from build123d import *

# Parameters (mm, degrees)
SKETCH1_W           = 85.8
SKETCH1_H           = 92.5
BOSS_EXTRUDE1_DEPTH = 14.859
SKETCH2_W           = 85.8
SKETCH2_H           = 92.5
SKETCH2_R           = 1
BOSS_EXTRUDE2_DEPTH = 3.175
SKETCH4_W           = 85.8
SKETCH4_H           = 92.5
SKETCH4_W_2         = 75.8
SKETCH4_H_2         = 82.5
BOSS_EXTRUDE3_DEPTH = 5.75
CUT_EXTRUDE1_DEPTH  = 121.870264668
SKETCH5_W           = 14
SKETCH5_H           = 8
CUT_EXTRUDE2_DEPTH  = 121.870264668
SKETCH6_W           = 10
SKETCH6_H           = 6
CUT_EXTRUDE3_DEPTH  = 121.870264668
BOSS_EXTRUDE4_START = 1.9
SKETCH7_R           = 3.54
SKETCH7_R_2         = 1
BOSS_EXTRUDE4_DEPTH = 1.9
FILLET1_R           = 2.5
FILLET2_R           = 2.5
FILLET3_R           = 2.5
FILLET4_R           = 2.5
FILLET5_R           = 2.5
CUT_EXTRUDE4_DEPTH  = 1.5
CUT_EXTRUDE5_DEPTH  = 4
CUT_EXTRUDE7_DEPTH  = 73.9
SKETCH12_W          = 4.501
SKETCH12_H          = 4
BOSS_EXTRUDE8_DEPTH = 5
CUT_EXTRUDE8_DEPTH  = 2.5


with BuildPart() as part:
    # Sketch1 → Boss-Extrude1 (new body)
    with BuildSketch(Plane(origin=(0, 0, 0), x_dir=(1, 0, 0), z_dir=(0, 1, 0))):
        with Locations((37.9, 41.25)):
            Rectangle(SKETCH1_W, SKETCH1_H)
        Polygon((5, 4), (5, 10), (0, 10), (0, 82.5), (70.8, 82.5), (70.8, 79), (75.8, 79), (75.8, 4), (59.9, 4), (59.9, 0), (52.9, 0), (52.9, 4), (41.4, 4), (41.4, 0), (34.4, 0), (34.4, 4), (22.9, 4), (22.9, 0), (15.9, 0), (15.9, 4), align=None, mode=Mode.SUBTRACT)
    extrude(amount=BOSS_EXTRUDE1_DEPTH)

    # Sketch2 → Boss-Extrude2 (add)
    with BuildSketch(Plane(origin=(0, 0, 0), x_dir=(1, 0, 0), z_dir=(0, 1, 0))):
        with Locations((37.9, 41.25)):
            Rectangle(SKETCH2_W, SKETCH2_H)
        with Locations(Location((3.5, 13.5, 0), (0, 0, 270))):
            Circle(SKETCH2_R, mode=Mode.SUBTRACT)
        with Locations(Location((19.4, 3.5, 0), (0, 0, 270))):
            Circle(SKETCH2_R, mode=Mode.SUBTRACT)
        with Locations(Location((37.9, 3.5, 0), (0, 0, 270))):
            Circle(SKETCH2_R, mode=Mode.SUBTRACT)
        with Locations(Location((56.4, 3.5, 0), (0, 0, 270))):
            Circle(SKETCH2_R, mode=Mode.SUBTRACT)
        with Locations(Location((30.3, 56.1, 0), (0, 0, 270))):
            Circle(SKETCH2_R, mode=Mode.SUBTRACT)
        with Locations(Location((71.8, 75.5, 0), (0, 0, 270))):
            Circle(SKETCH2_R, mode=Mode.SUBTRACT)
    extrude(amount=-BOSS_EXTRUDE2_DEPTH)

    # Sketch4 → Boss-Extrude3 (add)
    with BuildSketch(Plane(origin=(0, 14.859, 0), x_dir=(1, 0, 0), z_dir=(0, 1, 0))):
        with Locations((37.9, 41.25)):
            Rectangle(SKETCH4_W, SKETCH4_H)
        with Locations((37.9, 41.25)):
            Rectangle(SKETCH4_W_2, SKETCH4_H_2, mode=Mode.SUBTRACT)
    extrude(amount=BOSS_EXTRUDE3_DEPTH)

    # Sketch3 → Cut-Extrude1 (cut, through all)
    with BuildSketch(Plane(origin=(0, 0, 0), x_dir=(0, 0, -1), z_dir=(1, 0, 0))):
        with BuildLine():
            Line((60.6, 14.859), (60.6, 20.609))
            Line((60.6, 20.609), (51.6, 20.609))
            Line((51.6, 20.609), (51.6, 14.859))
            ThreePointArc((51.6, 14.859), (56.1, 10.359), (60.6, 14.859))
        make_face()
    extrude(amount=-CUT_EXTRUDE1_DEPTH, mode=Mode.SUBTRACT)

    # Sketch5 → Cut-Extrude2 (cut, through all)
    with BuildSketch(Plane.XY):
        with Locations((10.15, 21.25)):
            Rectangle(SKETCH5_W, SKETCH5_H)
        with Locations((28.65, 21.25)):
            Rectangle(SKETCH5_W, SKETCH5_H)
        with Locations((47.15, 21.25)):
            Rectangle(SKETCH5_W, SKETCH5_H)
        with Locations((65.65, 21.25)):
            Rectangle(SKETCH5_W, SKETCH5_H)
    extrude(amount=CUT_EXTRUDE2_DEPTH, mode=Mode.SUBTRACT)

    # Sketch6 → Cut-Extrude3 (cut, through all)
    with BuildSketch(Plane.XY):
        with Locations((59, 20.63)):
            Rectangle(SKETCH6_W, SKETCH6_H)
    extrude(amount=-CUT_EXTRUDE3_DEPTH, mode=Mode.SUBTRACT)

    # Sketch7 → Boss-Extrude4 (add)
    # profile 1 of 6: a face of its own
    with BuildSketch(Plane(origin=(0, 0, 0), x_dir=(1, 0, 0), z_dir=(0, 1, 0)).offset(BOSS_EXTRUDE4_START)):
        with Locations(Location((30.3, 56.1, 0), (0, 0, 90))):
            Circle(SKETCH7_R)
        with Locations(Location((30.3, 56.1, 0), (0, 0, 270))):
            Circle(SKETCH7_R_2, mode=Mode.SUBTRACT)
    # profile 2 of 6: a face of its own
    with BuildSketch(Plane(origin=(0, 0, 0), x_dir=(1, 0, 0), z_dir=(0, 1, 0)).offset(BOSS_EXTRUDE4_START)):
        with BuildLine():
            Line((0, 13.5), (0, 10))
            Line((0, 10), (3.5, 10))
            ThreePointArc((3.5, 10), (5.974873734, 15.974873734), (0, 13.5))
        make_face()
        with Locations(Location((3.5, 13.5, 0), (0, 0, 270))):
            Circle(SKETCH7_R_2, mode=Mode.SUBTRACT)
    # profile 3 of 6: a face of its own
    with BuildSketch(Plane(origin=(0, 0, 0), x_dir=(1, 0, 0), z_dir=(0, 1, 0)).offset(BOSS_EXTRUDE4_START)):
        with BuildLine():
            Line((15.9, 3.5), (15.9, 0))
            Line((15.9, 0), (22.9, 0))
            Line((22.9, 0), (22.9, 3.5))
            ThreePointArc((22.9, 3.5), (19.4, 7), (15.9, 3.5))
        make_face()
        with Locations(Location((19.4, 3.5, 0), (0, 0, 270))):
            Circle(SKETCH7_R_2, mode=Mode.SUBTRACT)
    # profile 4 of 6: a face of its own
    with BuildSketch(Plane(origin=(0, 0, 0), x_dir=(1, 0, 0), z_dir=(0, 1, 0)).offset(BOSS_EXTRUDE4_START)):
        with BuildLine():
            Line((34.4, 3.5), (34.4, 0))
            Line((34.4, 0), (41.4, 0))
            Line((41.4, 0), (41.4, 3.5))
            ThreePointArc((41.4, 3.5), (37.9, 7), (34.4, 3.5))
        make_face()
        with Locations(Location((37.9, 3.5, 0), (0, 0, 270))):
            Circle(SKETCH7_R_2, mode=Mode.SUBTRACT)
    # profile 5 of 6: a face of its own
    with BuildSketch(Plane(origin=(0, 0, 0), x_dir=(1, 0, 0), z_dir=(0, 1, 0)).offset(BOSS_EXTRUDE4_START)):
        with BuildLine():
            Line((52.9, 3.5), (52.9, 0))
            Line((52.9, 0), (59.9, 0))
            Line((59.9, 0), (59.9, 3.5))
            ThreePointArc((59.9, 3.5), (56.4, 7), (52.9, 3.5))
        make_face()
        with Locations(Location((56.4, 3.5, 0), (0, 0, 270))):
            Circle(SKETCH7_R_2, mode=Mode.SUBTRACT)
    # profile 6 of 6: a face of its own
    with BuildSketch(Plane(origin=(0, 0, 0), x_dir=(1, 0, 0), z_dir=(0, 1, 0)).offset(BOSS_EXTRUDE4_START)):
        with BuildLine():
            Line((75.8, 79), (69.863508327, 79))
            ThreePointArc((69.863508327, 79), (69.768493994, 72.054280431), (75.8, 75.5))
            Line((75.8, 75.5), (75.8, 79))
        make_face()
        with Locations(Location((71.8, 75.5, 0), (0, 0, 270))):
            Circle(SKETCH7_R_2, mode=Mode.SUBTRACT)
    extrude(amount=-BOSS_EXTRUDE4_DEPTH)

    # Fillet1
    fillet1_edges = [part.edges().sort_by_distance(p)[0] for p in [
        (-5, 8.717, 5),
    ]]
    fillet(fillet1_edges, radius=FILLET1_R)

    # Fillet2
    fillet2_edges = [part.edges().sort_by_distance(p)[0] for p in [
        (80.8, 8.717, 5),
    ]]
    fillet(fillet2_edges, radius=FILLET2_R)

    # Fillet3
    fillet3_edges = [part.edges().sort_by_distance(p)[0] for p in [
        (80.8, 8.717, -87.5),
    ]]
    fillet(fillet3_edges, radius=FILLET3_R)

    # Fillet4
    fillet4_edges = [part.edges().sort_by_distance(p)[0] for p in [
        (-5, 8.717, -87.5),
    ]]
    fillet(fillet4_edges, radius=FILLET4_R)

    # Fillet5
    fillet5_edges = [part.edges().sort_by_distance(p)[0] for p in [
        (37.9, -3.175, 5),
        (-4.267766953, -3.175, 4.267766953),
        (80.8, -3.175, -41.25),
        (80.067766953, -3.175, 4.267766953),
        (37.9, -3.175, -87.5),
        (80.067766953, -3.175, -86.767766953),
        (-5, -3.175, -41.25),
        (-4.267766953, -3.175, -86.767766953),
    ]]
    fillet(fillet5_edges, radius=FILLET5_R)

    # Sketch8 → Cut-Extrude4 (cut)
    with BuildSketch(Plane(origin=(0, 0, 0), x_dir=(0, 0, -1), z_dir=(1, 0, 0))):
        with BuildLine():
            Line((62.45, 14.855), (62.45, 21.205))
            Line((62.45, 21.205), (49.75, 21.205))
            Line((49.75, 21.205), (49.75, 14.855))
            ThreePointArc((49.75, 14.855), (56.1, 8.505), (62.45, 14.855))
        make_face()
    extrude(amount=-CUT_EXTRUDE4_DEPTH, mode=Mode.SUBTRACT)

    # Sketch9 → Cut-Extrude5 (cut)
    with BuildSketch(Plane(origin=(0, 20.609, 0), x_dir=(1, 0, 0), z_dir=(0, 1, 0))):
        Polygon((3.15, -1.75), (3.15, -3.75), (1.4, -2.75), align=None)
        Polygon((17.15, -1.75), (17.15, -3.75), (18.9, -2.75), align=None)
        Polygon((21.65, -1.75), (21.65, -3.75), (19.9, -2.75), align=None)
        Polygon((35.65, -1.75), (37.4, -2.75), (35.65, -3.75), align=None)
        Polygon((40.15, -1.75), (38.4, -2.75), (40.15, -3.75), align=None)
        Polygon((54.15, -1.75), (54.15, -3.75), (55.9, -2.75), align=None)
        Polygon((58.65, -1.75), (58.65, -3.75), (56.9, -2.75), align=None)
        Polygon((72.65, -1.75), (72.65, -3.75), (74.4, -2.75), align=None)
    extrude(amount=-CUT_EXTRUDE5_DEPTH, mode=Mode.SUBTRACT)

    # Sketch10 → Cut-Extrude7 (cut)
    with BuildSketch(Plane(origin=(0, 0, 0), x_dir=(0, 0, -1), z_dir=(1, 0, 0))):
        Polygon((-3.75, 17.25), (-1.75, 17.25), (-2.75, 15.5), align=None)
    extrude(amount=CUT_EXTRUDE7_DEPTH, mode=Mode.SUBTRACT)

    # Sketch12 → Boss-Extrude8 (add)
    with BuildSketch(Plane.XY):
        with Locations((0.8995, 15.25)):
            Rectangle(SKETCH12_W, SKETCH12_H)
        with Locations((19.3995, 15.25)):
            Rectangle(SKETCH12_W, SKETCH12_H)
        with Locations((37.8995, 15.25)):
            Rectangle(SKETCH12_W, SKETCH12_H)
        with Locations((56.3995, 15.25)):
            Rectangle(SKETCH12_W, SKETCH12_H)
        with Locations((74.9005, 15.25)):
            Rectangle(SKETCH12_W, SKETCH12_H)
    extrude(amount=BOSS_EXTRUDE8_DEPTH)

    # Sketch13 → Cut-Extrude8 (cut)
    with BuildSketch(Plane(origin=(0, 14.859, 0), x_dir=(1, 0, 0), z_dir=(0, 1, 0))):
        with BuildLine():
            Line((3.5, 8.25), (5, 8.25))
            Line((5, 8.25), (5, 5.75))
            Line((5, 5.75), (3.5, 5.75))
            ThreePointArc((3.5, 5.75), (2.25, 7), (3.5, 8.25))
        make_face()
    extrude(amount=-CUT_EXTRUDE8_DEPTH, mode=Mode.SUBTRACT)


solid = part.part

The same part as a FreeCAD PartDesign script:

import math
import FreeCAD as App
import Part
import Sketcher

V = App.Vector
Q = App.Units.Quantity


def edges_at(feature, points):
    """Names of the edges that pass closest to the given points."""
    edges = feature.Shape.Edges
    near = lambda p: min(range(len(edges)), key=lambda i: edges[i].distToShape(Part.Vertex(*p))[0])
    return sorted({f"Edge{near(p) + 1}" for p in points})


def add_polygon(sketch, points):
    """Adds a closed chain of lines whose ends are joined by coincident constraints."""
    first, n = sketch.GeometryCount, len(points)
    for a, b in zip(points, points[1:] + points[:1]):
        sketch.addGeometry(Part.LineSegment(App.Vector(*a, 0), App.Vector(*b, 0)), False)
    for i in range(n):
        sketch.addConstraint(Sketcher.Constraint("Coincident", first + i, 2, first + (i + 1) % n, 1))

doc = App.newDocument("Part")
body = doc.addObject("PartDesign::Body", "Body")

# Sketch on XZ plane
sketch1 = doc.addObject("Sketcher::SketchObject", "Sketch")
body.addObject(sketch1)
sketch1.AttachmentSupport = (doc.XZ_Plane, [""])
sketch1.MapMode = "FlatFace"
add_polygon(sketch1, [(-5, -87.5), (-5, 5), (80.8, 5), (80.8, -87.5)])  # lines 0-3
add_polygon(sketch1, [(15.9, -4), (5, -4), (5, -10), (0, -10), (0, -82.5), (70.8, -82.5), (70.8, -79), (75.8, -79), (75.8, -4), (59.9, -4), (59.9, 0), (52.9, 0), (52.9, -4), (41.4, -4), (41.4, 0), (34.4, 0), (34.4, -4), (22.9, -4), (22.9, 0), (15.9, 0)])  # lines 4-23
sketch1.addConstraint([
    Sketcher.Constraint("Vertical", 0),
    Sketcher.Constraint("Horizontal", 1),
    Sketcher.Constraint("Vertical", 2),
    Sketcher.Constraint("Horizontal", 3),
    Sketcher.Constraint("Horizontal", 4),
    Sketcher.Constraint("Vertical", 5),
    Sketcher.Constraint("Horizontal", 6),
    Sketcher.Constraint("Vertical", 7),
    Sketcher.Constraint("Horizontal", 8),
    Sketcher.Constraint("Vertical", 9),
    Sketcher.Constraint("Horizontal", 10),
    Sketcher.Constraint("Vertical", 11),
    Sketcher.Constraint("Horizontal", 12),
    Sketcher.Constraint("Vertical", 13),
    Sketcher.Constraint("Horizontal", 14),
    Sketcher.Constraint("Vertical", 15),
    Sketcher.Constraint("Horizontal", 16),
    Sketcher.Constraint("Vertical", 17),
    Sketcher.Constraint("Horizontal", 18),
    Sketcher.Constraint("Vertical", 19),
    Sketcher.Constraint("Horizontal", 20),
    Sketcher.Constraint("Vertical", 21),
    Sketcher.Constraint("Horizontal", 22),
    Sketcher.Constraint("Vertical", 23),
    Sketcher.Constraint("PointOnObject", 6, 2, -2),
    Sketcher.Constraint("PointOnObject", 13, 2, -1),
    Sketcher.Constraint("PointOnObject", 17, 2, -1),
    Sketcher.Constraint("PointOnObject", 21, 2, -1),
    Sketcher.Constraint("Horizontal", 4, 2, 11, 2),
    Sketcher.Constraint("Horizontal", 12, 2, 15, 2),
    Sketcher.Constraint("Horizontal", 16, 2, 19, 2),
    Sketcher.Constraint("Equal", 6, 10),
    Sketcher.Constraint("Equal", 14, 18),
    Sketcher.Constraint("Equal", 16, 20),
    Sketcher.Constraint("Equal", 18, 22),
    Sketcher.Constraint("DistanceX", 6, 2, 6, 1, Q("5 mm")),
    Sketcher.Constraint("DistanceX", 14, 2, 14, 1, Q("7 mm")),
    Sketcher.Constraint("DistanceY", 5, 2, 5, 1, Q("6 mm")),
    Sketcher.Constraint("DistanceY", 11, 1, 11, 2, Q("75 mm")),
    Sketcher.Constraint("DistanceY", 13, 1, 13, 2, Q("4 mm")),
    Sketcher.Constraint("DistanceX", 1, 1, 1, 2, Q("85.8 mm")),
    Sketcher.Constraint("DistanceX", 4, 2, 4, 1, Q("10.9 mm")),
    Sketcher.Constraint("DistanceX", 8, 1, 8, 2, Q("70.8 mm")),
    Sketcher.Constraint("DistanceX", 12, 2, 12, 1, Q("15.9 mm")),
    Sketcher.Constraint("DistanceY", 0, 1, 0, 2, Q("92.5 mm")),
    Sketcher.Constraint("DistanceY", 7, 2, 7, 1, Q("72.5 mm")),
    Sketcher.Constraint("DistanceX", 0, 2, -1, 1, Q("5 mm")),
    Sketcher.Constraint("DistanceY", -1, 1, 0, 2, Q("5 mm")),
])
pad1 = doc.addObject("PartDesign::Pad", "Pad")
body.addObject(pad1)
pad1.Profile = sketch1
pad1.Length = 14.859
pad1.Reversed = True

# Sketch on XZ plane
sketch2 = doc.addObject("Sketcher::SketchObject", "Sketch001")
body.addObject(sketch2)
sketch2.AttachmentSupport = (doc.XZ_Plane, [""])
sketch2.MapMode = "FlatFace"
add_polygon(sketch2, [(-5, -87.5), (-5, 5), (80.8, 5), (80.8, -87.5)])  # lines 0-3
sketch2.addGeometry(Part.Circle(V(19.4, -3.5, 0), V(0, 0, 1), 1), False)  # 4
sketch2.addGeometry(Part.Circle(V(3.5, -13.5, 0), V(0, 0, 1), 1), False)  # 5
sketch2.addGeometry(Part.Circle(V(37.9, -3.5, 0), V(0, 0, 1), 1), False)  # 6
sketch2.addGeometry(Part.Circle(V(56.4, -3.5, 0), V(0, 0, 1), 1), False)  # 7
sketch2.addGeometry(Part.Circle(V(30.3, -56.1, 0), V(0, 0, 1), 1), False)  # 8
sketch2.addGeometry(Part.Circle(V(71.8, -75.5, 0), V(0, 0, 1), 1), False)  # 9
sketch2.addConstraint([
    Sketcher.Constraint("Vertical", 0),
    Sketcher.Constraint("Horizontal", 1),
    Sketcher.Constraint("Vertical", 2),
    Sketcher.Constraint("Horizontal", 3),
    Sketcher.Constraint("Equal", 4, 5),
    Sketcher.Constraint("Equal", 5, 6),
    Sketcher.Constraint("Equal", 6, 7),
    Sketcher.Constraint("Equal", 7, 8),
    Sketcher.Constraint("Equal", 8, 9),
    Sketcher.Constraint("Horizontal", 4, 3, 6, 3),
    Sketcher.Constraint("Horizontal", 6, 3, 7, 3),
    Sketcher.Constraint("Diameter", 4, Q("2 mm")),
    Sketcher.Constraint("DistanceX", 1, 1, 1, 2, Q("85.8 mm")),
    Sketcher.Constraint("DistanceY", 0, 1, 0, 2, Q("92.5 mm")),
    Sketcher.Constraint("DistanceX", 0, 2, -1, 1, Q("5 mm")),
    Sketcher.Constraint("DistanceY", -1, 1, 0, 2, Q("5 mm")),
    Sketcher.Constraint("DistanceY", 5, 3, 4, 3, Q("10 mm")),
    Sketcher.Constraint("DistanceX", 4, 3, 7, 3, Q("37 mm")),
    Sketcher.Constraint("DistanceY", 9, 3, 7, 3, Q("72 mm")),
    Sketcher.Constraint("DistanceX", 9, 3, 2, 2, Q("9 mm")),
    Sketcher.Constraint("DistanceY", 2, 2, 9, 3, Q("12 mm")),
    Sketcher.Constraint("DistanceX", -1, 1, 4, 3, Q("19.4 mm")),
    Sketcher.Constraint("DistanceX", -1, 1, 5, 3, Q("3.5 mm")),
    Sketcher.Constraint("DistanceX", -1, 1, 6, 3, Q("37.9 mm")),
    Sketcher.Constraint("DistanceX", -1, 1, 8, 3, Q("30.3 mm")),
    Sketcher.Constraint("DistanceY", 8, 3, -1, 1, Q("56.1 mm")),
])
pad2 = doc.addObject("PartDesign::Pad", "Pad001")
body.addObject(pad2)
pad2.Profile = sketch2
pad2.Length = 3.175

# Sketch on XZ plane
sketch3 = doc.addObject("Sketcher::SketchObject", "Sketch002")
body.addObject(sketch3)
sketch3.AttachmentSupport = (doc.XZ_Plane, [""])
sketch3.MapMode = "FlatFace"
sketch3.AttachmentOffset = App.Placement(V(0, 0, -14.859), App.Rotation())
add_polygon(sketch3, [(-5, -88), (-5, 5), (81, 5), (81, -88)])  # lines 0-3
add_polygon(sketch3, [(76, 0), (0, 0), (0, -82), (76, -82)])  # lines 4-7
sketch3.addConstraint([
    Sketcher.Constraint("Vertical", 0),
    Sketcher.Constraint("Horizontal", 1),
    Sketcher.Constraint("Vertical", 2),
    Sketcher.Constraint("Horizontal", 3),
    Sketcher.Constraint("Horizontal", 4),
    Sketcher.Constraint("Vertical", 5),
    Sketcher.Constraint("Horizontal", 6),
    Sketcher.Constraint("Vertical", 7),
    Sketcher.Constraint("Coincident", 4, 2, -1, 1),
    Sketcher.Constraint("DistanceX", 1, 1, 1, 2, Q("85.8 mm")),
    Sketcher.Constraint("DistanceX", 4, 2, 4, 1, Q("75.8 mm")),
    Sketcher.Constraint("DistanceY", 0, 1, 0, 2, Q("92.5 mm")),
    Sketcher.Constraint("DistanceY", 5, 2, 5, 1, Q("82.5 mm")),
    Sketcher.Constraint("DistanceX", 0, 2, -1, 1, Q("5 mm")),
    Sketcher.Constraint("DistanceY", -1, 1, 0, 2, Q("5 mm")),
])
pad3 = doc.addObject("PartDesign::Pad", "Pad002")
body.addObject(pad3)
pad3.Profile = sketch3
pad3.Length = 5.75
pad3.Reversed = True

# Sketch on YZ plane
sketch4 = doc.addObject("Sketcher::SketchObject", "Sketch003")
body.addObject(sketch4)
sketch4.AttachmentSupport = (doc.YZ_Plane, [""])
sketch4.MapMode = "FlatFace"
sketch4.addGeometry([
    Part.LineSegment(V(14.9, -60.6, 0), V(20.6, -60.6, 0)),
    Part.LineSegment(V(20.6, -60.6, 0), V(20.6, -51.6, 0)),
    Part.LineSegment(V(20.6, -51.6, 0), V(14.9, -51.6, 0)),
    Part.ArcOfCircle(Part.Circle(V(14.9, -56.1, 0), V(0, 0, 1), 4.5), math.radians(90), math.radians(270)),
], False)
sketch4.addConstraint([
    Sketcher.Constraint("Coincident", 0, 2, 1, 1),
    Sketcher.Constraint("Coincident", 1, 2, 2, 1),
    Sketcher.Constraint("Tangent", 2, 2, 3, 1),
    Sketcher.Constraint("Tangent", 3, 2, 0, 1),
    Sketcher.Constraint("Horizontal", 0),
    Sketcher.Constraint("Vertical", 1),
    Sketcher.Constraint("Horizontal", 2),
    Sketcher.Constraint("Radius", 3, Q("4.5 mm")),
    Sketcher.Constraint("DistanceX", 0, 1, 0, 2, Q("5.75 mm")),
    Sketcher.Constraint("DistanceY", 3, 3, -1, 1, Q("56.1 mm")),
    Sketcher.Constraint("DistanceX", -1, 1, 3, 3, Q("14.859 mm")),
])
pocket1 = doc.addObject("PartDesign::Pocket", "Pocket")
body.addObject(pocket1)
pocket1.Profile = sketch4
pocket1.Type = "ThroughAll"

# Sketch on XY plane
sketch5 = doc.addObject("Sketcher::SketchObject", "Sketch004")
body.addObject(sketch5)
sketch5.AttachmentSupport = (doc.XY_Plane, [""])
sketch5.MapMode = "FlatFace"
add_polygon(sketch5, [(3, 25), (3, 17), (17, 17), (17, 25)])  # lines 0-3
add_polygon(sketch5, [(22, 25), (22, 17), (36, 17), (36, 25)])  # lines 4-7
add_polygon(sketch5, [(40, 25), (40, 17), (54, 17), (54, 25)])  # lines 8-11
add_polygon(sketch5, [(59, 25), (59, 17), (73, 17), (73, 25)])  # lines 12-15
sketch5.addConstraint([
    Sketcher.Constraint("Vertical", 0),
    Sketcher.Constraint("Horizontal", 1),
    Sketcher.Constraint("Vertical", 2),
    Sketcher.Constraint("Horizontal", 3),
    Sketcher.Constraint("Vertical", 4),
    Sketcher.Constraint("Horizontal", 5),
    Sketcher.Constraint("Vertical", 6),
    Sketcher.Constraint("Horizontal", 7),
    Sketcher.Constraint("Vertical", 8),
    Sketcher.Constraint("Horizontal", 9),
    Sketcher.Constraint("Vertical", 10),
    Sketcher.Constraint("Horizontal", 11),
    Sketcher.Constraint("Vertical", 12),
    Sketcher.Constraint("Horizontal", 13),
    Sketcher.Constraint("Vertical", 14),
    Sketcher.Constraint("Horizontal", 15),
    Sketcher.Constraint("Horizontal", 1, 2, 4, 2),
    Sketcher.Constraint("Horizontal", 3, 2, 6, 2),
    Sketcher.Constraint("Horizontal", 5, 2, 8, 2),
    Sketcher.Constraint("Horizontal", 7, 2, 10, 2),
    Sketcher.Constraint("Horizontal", 9, 2, 12, 2),
    Sketcher.Constraint("Horizontal", 11, 2, 14, 2),
    Sketcher.Constraint("Equal", 3, 5),
    Sketcher.Constraint("Equal", 7, 9),
    Sketcher.Constraint("Equal", 11, 13),
    Sketcher.Constraint("DistanceX", 1, 1, 1, 2, Q("14 mm")),
    Sketcher.Constraint("DistanceY", 0, 2, 0, 1, Q("8 mm")),
    Sketcher.Constraint("DistanceX", 1, 2, 8, 2, Q("23 mm")),
    Sketcher.Constraint("DistanceX", 5, 2, 12, 2, Q("23 mm")),
    Sketcher.Constraint("DistanceX", 1, 2, 4, 2, Q("4.5 mm")),
    Sketcher.Constraint("DistanceX", -1, 1, 0, 2, Q("3.15 mm")),
    Sketcher.Constraint("DistanceY", -1, 1, 0, 2, Q("17.25 mm")),
])
pocket2 = doc.addObject("PartDesign::Pocket", "Pocket001")
body.addObject(pocket2)
pocket2.Profile = sketch5
pocket2.Type = "ThroughAll"
pocket2.Reversed = True

# Sketch on XY plane
sketch6 = doc.addObject("Sketcher::SketchObject", "Sketch005")
body.addObject(sketch6)
sketch6.AttachmentSupport = (doc.XY_Plane, [""])
sketch6.MapMode = "FlatFace"
add_polygon(sketch6, [(54, 24), (54, 18), (64, 18), (64, 24)])  # lines 0-3
sketch6.addConstraint([
    Sketcher.Constraint("Vertical", 0),
    Sketcher.Constraint("Horizontal", 1),
    Sketcher.Constraint("Vertical", 2),
    Sketcher.Constraint("Horizontal", 3),
    Sketcher.Constraint("DistanceX", 1, 1, 1, 2, Q("10 mm")),
    Sketcher.Constraint("DistanceY", 0, 2, 0, 1, Q("6 mm")),
    Sketcher.Constraint("DistanceX", -1, 1, 0, 2, Q("54 mm")),
    Sketcher.Constraint("DistanceY", -1, 1, 0, 2, Q("17.63 mm")),
])
pocket3 = doc.addObject("PartDesign::Pocket", "Pocket002")
body.addObject(pocket3)
pocket3.Profile = sketch6
pocket3.Type = "ThroughAll"

# Sketch on XZ plane
sketch7 = doc.addObject("Sketcher::SketchObject", "Sketch006")
body.addObject(sketch7)
sketch7.AttachmentSupport = (doc.XZ_Plane, [""])
sketch7.MapMode = "FlatFace"
sketch7.AttachmentOffset = App.Placement(V(0, 0, -1.9), App.Rotation())
sketch7.addGeometry([
    Part.Circle(V(30.3, -56.1, 0), V(0, 0, 1), 3.5),  # 0
    Part.Circle(V(30.3, -56.1, 0), V(0, 0, 1), 1),  # 1
    Part.LineSegment(V(0, -13.5, 0), V(0, -10, 0)),  # 2
    Part.LineSegment(V(0, -10, 0), V(3.5, -10, 0)),  # 3
    Part.ArcOfCircle(Part.Circle(V(3.5, -13.5, 0), V(0, 0, 1), 3.5), math.radians(180), math.radians(450)),  # 4
    Part.Circle(V(3.5, -13.5, 0), V(0, 0, 1), 1),  # 5
    Part.LineSegment(V(15.9, -3.5, 0), V(15.9, 0, 0)),  # 6
    Part.LineSegment(V(15.9, 0, 0), V(22.9, 0, 0)),  # 7
    Part.LineSegment(V(22.9, 0, 0), V(22.9, -3.5, 0)),  # 8
    Part.ArcOfCircle(Part.Circle(V(19.4, -3.5, 0), V(0, 0, 1), 3.5), math.radians(180), math.radians(360)),  # 9
    Part.Circle(V(19.4, -3.5, 0), V(0, 0, 1), 1),  # 10
    Part.LineSegment(V(34.4, -3.5, 0), V(34.4, 0, 0)),  # 11
    Part.LineSegment(V(34.4, 0, 0), V(41.4, 0, 0)),  # 12
    Part.LineSegment(V(41.4, 0, 0), V(41.4, -3.5, 0)),  # 13
    Part.ArcOfCircle(Part.Circle(V(37.9, -3.5, 0), V(0, 0, 1), 3.5), math.radians(180), math.radians(360)),  # 14
    Part.Circle(V(37.9, -3.5, 0), V(0, 0, 1), 1),  # 15
    Part.LineSegment(V(52.9, -3.5, 0), V(52.9, 0, 0)),  # 16
    Part.LineSegment(V(52.9, 0, 0), V(59.9, 0, 0)),  # 17
    Part.LineSegment(V(59.9, 0, 0), V(59.9, -3.5, 0)),  # 18
    Part.ArcOfCircle(Part.Circle(V(56.4, -3.5, 0), V(0, 0, 1), 3.5), math.radians(180), math.radians(360)),  # 19
    Part.Circle(V(56.4, -3.5, 0), V(0, 0, 1), 1),  # 20
    Part.LineSegment(V(75.8, -79, 0), V(69.9, -79, 0)),  # 21
    Part.ArcOfCircle(Part.Circle(V(71.8, -75.5, 0), V(0, 0, 1), 4), math.radians(0), math.radians(241)),  # 22
    Part.LineSegment(V(75.8, -75.5, 0), V(75.8, -79, 0)),  # 23
    Part.Circle(V(71.8, -75.5, 0), V(0, 0, 1), 1),  # 24
], False)
sketch7.addConstraint([
    Sketcher.Constraint("Coincident", 2, 2, 3, 1),
    Sketcher.Constraint("Tangent", 3, 2, 4, 2),
    Sketcher.Constraint("Tangent", 4, 1, 2, 1),
    Sketcher.Constraint("Coincident", 6, 2, 7, 1),
    Sketcher.Constraint("Coincident", 7, 2, 8, 1),
    Sketcher.Constraint("Tangent", 8, 2, 9, 2),
    Sketcher.Constraint("Tangent", 9, 1, 6, 1),
    Sketcher.Constraint("Coincident", 11, 2, 12, 1),
    Sketcher.Constraint("Coincident", 12, 2, 13, 1),
    Sketcher.Constraint("Tangent", 13, 2, 14, 2),
    Sketcher.Constraint("Tangent", 14, 1, 11, 1),
    Sketcher.Constraint("Coincident", 16, 2, 17, 1),
    Sketcher.Constraint("Coincident", 17, 2, 18, 1),
    Sketcher.Constraint("Tangent", 18, 2, 19, 2),
    Sketcher.Constraint("Tangent", 19, 1, 16, 1),
    Sketcher.Constraint("Coincident", 21, 2, 22, 2),
    Sketcher.Constraint("Tangent", 22, 1, 23, 1),
    Sketcher.Constraint("Coincident", 23, 2, 21, 1),
    Sketcher.Constraint("Vertical", 2),
    Sketcher.Constraint("Horizontal", 3),
    Sketcher.Constraint("Vertical", 6),
    Sketcher.Constraint("Horizontal", 7),
    Sketcher.Constraint("Vertical", 8),
    Sketcher.Constraint("Vertical", 11),
    Sketcher.Constraint("Horizontal", 12),
    Sketcher.Constraint("Vertical", 13),
    Sketcher.Constraint("Vertical", 16),
    Sketcher.Constraint("Horizontal", 17),
    Sketcher.Constraint("Vertical", 18),
    Sketcher.Constraint("Horizontal", 21),
    Sketcher.Constraint("Vertical", 23),
    Sketcher.Constraint("Coincident", 1, 3, 0, 3),
    Sketcher.Constraint("Coincident", 5, 3, 4, 3),
    Sketcher.Constraint("Coincident", 10, 3, 9, 3),
    Sketcher.Constraint("Coincident", 15, 3, 14, 3),
    Sketcher.Constraint("Coincident", 20, 3, 19, 3),
    Sketcher.Constraint("Coincident", 24, 3, 22, 3),
    Sketcher.Constraint("Equal", 1, 5),
    Sketcher.Constraint("Equal", 4, 9),
    Sketcher.Constraint("Equal", 5, 10),
    Sketcher.Constraint("Equal", 9, 14),
    Sketcher.Constraint("Equal", 10, 15),
    Sketcher.Constraint("Equal", 14, 19),
    Sketcher.Constraint("Equal", 15, 20),
    Sketcher.Constraint("Equal", 20, 24),
    Sketcher.Constraint("PointOnObject", 2, 2, -2),
    Sketcher.Constraint("PointOnObject", 6, 2, -1),
    Sketcher.Constraint("PointOnObject", 11, 2, -1),
    Sketcher.Constraint("PointOnObject", 16, 2, -1),
    Sketcher.Constraint("Horizontal", 10, 3, 14, 3),
    Sketcher.Constraint("Horizontal", 15, 3, 19, 3),
    Sketcher.Constraint("Equal", 2, 6),
    Sketcher.Constraint("Equal", 18, 23),
    Sketcher.Constraint("Diameter", 1, Q("2 mm")),
    Sketcher.Constraint("Radius", 22, Q("4 mm")),
    Sketcher.Constraint("Radius", 4, Q("3.5 mm")),
    Sketcher.Constraint("Diameter", 0, Q("7.08 mm")),
    Sketcher.Constraint("DistanceY", 2, 2, -1, 1, Q("10 mm")),
    Sketcher.Constraint("DistanceY", 21, 2, -1, 1, Q("79 mm")),
    Sketcher.Constraint("DistanceX", 9, 3, 19, 3, Q("37 mm")),
    Sketcher.Constraint("DistanceX", 7, 2, 14, 3, Q("15 mm")),
    Sketcher.Constraint("DistanceX", -1, 1, 0, 3, Q("30.3 mm")),
    Sketcher.Constraint("DistanceY", 0, 3, -1, 1, Q("56.1 mm")),
    Sketcher.Constraint("DistanceX", -1, 1, 9, 3, Q("19.4 mm")),
    Sketcher.Constraint("DistanceX", -1, 1, 22, 3, Q("71.8 mm")),
])
pad4 = doc.addObject("PartDesign::Pad", "Pad003")
body.addObject(pad4)
pad4.Profile = sketch7
pad4.Length = 1.9
doc.recompute()

fillet = doc.addObject("PartDesign::Fillet", "Fillet")
body.addObject(fillet)
fillet.Base = (pad4, edges_at(pad4, [(-5, 8.717, 5)]))
fillet.Radius = 2.5
doc.recompute()

fillet2 = doc.addObject("PartDesign::Fillet", "Fillet001")
body.addObject(fillet2)
fillet2.Base = (fillet, edges_at(fillet, [(80.8, 8.717, 5)]))
fillet2.Radius = 2.5
doc.recompute()

fillet3 = doc.addObject("PartDesign::Fillet", "Fillet002")
body.addObject(fillet3)
fillet3.Base = (fillet2, edges_at(fillet2, [(80.8, 8.717, -87.5)]))
fillet3.Radius = 2.5
doc.recompute()

fillet4 = doc.addObject("PartDesign::Fillet", "Fillet003")
body.addObject(fillet4)
fillet4.Base = (fillet3, edges_at(fillet3, [(-5, 8.717, -87.5)]))
fillet4.Radius = 2.5
doc.recompute()

fillet5 = doc.addObject("PartDesign::Fillet", "Fillet004")
body.addObject(fillet5)
fillet5.Base = (fillet4, edges_at(fillet4, [
    (37.9, -3.175, 5),
    (-4.268, -3.175, 4.268),
    (80.8, -3.175, -41.25),
    (80.068, -3.175, 4.268),
    (37.9, -3.175, -87.5),
    (80.068, -3.175, -86.768),
    (-5, -3.175, -41.25),
    (-4.268, -3.175, -86.768),
]))
fillet5.Radius = 2.5

# Sketch on YZ plane
sketch8 = doc.addObject("Sketcher::SketchObject", "Sketch007")
body.addObject(sketch8)
sketch8.AttachmentSupport = (doc.YZ_Plane, [""])
sketch8.MapMode = "FlatFace"
sketch8.addGeometry([
    Part.LineSegment(V(15, -62, 0), V(21, -62, 0)),
    Part.LineSegment(V(21, -62, 0), V(21, -50, 0)),
    Part.LineSegment(V(21, -50, 0), V(15, -50, 0)),
    Part.ArcOfCircle(Part.Circle(V(15, -56, 0), V(0, 0, 1), 6), math.radians(90), math.radians(270)),
], False)
sketch8.addConstraint([
    Sketcher.Constraint("Coincident", 0, 2, 1, 1),
    Sketcher.Constraint("Coincident", 1, 2, 2, 1),
    Sketcher.Constraint("Tangent", 2, 2, 3, 1),
    Sketcher.Constraint("Tangent", 3, 2, 0, 1),
    Sketcher.Constraint("Horizontal", 0),
    Sketcher.Constraint("Vertical", 1),
    Sketcher.Constraint("Horizontal", 2),
    Sketcher.Constraint("Radius", 3, Q("6.35 mm")),
    Sketcher.Constraint("DistanceX", 0, 1, 0, 2, Q("6.35 mm")),
    Sketcher.Constraint("DistanceY", 3, 3, -1, 1, Q("56.1 mm")),
    Sketcher.Constraint("DistanceX", -1, 1, 3, 3, Q("14.855 mm")),
])
pocket4 = doc.addObject("PartDesign::Pocket", "Pocket003")
body.addObject(pocket4)
pocket4.Profile = sketch8
pocket4.Length = 1.5

# Sketch on XZ plane
sketch9 = doc.addObject("Sketcher::SketchObject", "Sketch008")
body.addObject(sketch9)
sketch9.AttachmentSupport = (doc.XZ_Plane, [""])
sketch9.MapMode = "FlatFace"
sketch9.AttachmentOffset = App.Placement(V(0, 0, -20.609), App.Rotation())
add_polygon(sketch9, [(3.1, 3.8), (3.1, 1.8), (1.4, 2.8)])  # lines 0-2
add_polygon(sketch9, [(17.1, 1.8), (17.1, 3.8), (18.9, 2.8)])  # lines 3-5
add_polygon(sketch9, [(21.6, 3.8), (21.6, 1.8), (19.9, 2.8)])  # lines 6-8
add_polygon(sketch9, [(37.4, 2.8), (35.6, 1.8), (35.6, 3.8)])  # lines 9-11
add_polygon(sketch9, [(40.1, 1.8), (38.4, 2.8), (40.1, 3.8)])  # lines 12-14
add_polygon(sketch9, [(54.1, 1.8), (54.1, 3.8), (55.9, 2.8)])  # lines 15-17
add_polygon(sketch9, [(58.6, 3.8), (58.6, 1.8), (56.9, 2.8)])  # lines 18-20
add_polygon(sketch9, [(72.7, 1.8), (72.7, 3.8), (74.4, 2.8)])  # lines 21-23
sketch9.addConstraint([
    Sketcher.Constraint("Vertical", 0),
    Sketcher.Constraint("Vertical", 3),
    Sketcher.Constraint("Vertical", 6),
    Sketcher.Constraint("Vertical", 10),
    Sketcher.Constraint("Vertical", 14),
    Sketcher.Constraint("Vertical", 15),
    Sketcher.Constraint("Vertical", 18),
    Sketcher.Constraint("Vertical", 21),
    Sketcher.Constraint("Parallel", 1, 4),
    Sketcher.Constraint("Parallel", 2, 5),
    Sketcher.Constraint("Parallel", 4, 7),
    Sketcher.Constraint("Parallel", 5, 8),
    Sketcher.Constraint("Parallel", 8, 9),
    Sketcher.Constraint("Parallel", 7, 11),
    Sketcher.Constraint("Parallel", 11, 12),
    Sketcher.Constraint("Parallel", 9, 13),
    Sketcher.Constraint("Parallel", 12, 16),
    Sketcher.Constraint("Parallel", 13, 17),
    Sketcher.Constraint("Parallel", 16, 19),
    Sketcher.Constraint("Parallel", 17, 20),
    Sketcher.Constraint("Parallel", 19, 22),
    Sketcher.Constraint("Parallel", 20, 23),
    Sketcher.Constraint("Horizontal", 2, 2, 3, 2),
    Sketcher.Constraint("Horizontal", 1, 2, 4, 2),
    Sketcher.Constraint("Horizontal", 0, 2, 5, 2),
    Sketcher.Constraint("Horizontal", 5, 2, 6, 2),
    Sketcher.Constraint("Horizontal", 4, 2, 7, 2),
    Sketcher.Constraint("Horizontal", 6, 2, 9, 2),
    Sketcher.Constraint("Horizontal", 8, 2, 10, 2),
    Sketcher.Constraint("Horizontal", 11, 2, 12, 2),
    Sketcher.Constraint("Horizontal", 10, 2, 13, 2),
    Sketcher.Constraint("Horizontal", 13, 2, 15, 2),
    Sketcher.Constraint("Horizontal", 12, 2, 16, 2),
    Sketcher.Constraint("Horizontal", 17, 2, 18, 2),
    Sketcher.Constraint("Horizontal", 16, 2, 19, 2),
    Sketcher.Constraint("Horizontal", 20, 2, 21, 2),
    Sketcher.Constraint("Horizontal", 19, 2, 22, 2),
    Sketcher.Constraint("DistanceY", 0, 2, 0, 1, Q("2 mm")),
    Sketcher.Constraint("DistanceX", 2, 2, 3, 2, Q("14 mm")),
    Sketcher.Constraint("DistanceX", 4, 2, 7, 2, Q("1 mm")),
    Sketcher.Constraint("DistanceX", 6, 2, 9, 2, Q("14 mm")),
    Sketcher.Constraint("DistanceX", 11, 2, 12, 2, Q("1 mm")),
    Sketcher.Constraint("DistanceX", 13, 2, 15, 2, Q("14 mm")),
    Sketcher.Constraint("DistanceX", 16, 2, 19, 2, Q("1 mm")),
    Sketcher.Constraint("DistanceX", 20, 2, 21, 2, Q("14 mm")),
    Sketcher.Constraint("DistanceX", -1, 1, 1, 2, Q("1.4 mm")),
    Sketcher.Constraint("DistanceX", -1, 1, 4, 2, Q("18.9 mm")),
    Sketcher.Constraint("DistanceY", -1, 1, 0, 2, Q("1.75 mm")),
])
pocket5 = doc.addObject("PartDesign::Pocket", "Pocket004")
body.addObject(pocket5)
pocket5.Profile = sketch9
pocket5.Length = 4
pocket5.Reversed = True

# Sketch on YZ plane
sketch10 = doc.addObject("Sketcher::SketchObject", "Sketch009")
body.addObject(sketch10)
sketch10.AttachmentSupport = (doc.YZ_Plane, [""])
sketch10.MapMode = "FlatFace"
add_polygon(sketch10, [(17.2, 1.8), (17.2, 3.8), (15.5, 2.8)])  # lines 0-2
sketch10.addConstraint([
    Sketcher.Constraint("Vertical", 0),
    Sketcher.Constraint("Equal", 1, 2),
    Sketcher.Constraint("DistanceY", 0, 1, 0, 2, Q("2 mm")),
    Sketcher.Constraint("DistanceX", -1, 1, 1, 2, Q("15.5 mm")),
    Sketcher.Constraint("DistanceX", -1, 1, 0, 2, Q("17.25 mm")),
    Sketcher.Constraint("DistanceY", -1, 1, 0, 2, Q("3.75 mm")),
])
pocket6 = doc.addObject("PartDesign::Pocket", "Pocket005")
body.addObject(pocket6)
pocket6.Profile = sketch10
pocket6.Length = 73.9
pocket6.Reversed = True

# Sketch on XY plane
sketch11 = doc.addObject("Sketcher::SketchObject", "Sketch010")
body.addObject(sketch11)
sketch11.AttachmentSupport = (doc.XY_Plane, [""])
sketch11.MapMode = "FlatFace"
add_polygon(sketch11, [(-1.4, 17.2), (-1.4, 13.2), (3.1, 13.2), (3.1, 17.2)])  # lines 0-3
add_polygon(sketch11, [(17.1, 17.2), (17.1, 13.2), (21.6, 13.2), (21.6, 17.2)])  # lines 4-7
add_polygon(sketch11, [(35.6, 17.2), (35.6, 13.2), (40.1, 13.2), (40.1, 17.2)])  # lines 8-11
add_polygon(sketch11, [(54.1, 17.2), (54.1, 13.2), (58.6, 13.2), (58.6, 17.2)])  # lines 12-15
add_polygon(sketch11, [(72.7, 17.2), (72.7, 13.2), (77.2, 13.2), (77.2, 17.2)])  # lines 16-19
sketch11.addConstraint([
    Sketcher.Constraint("Vertical", 0),
    Sketcher.Constraint("Horizontal", 1),
    Sketcher.Constraint("Vertical", 2),
    Sketcher.Constraint("Horizontal", 3),
    Sketcher.Constraint("Vertical", 4),
    Sketcher.Constraint("Horizontal", 5),
    Sketcher.Constraint("Vertical", 6),
    Sketcher.Constraint("Horizontal", 7),
    Sketcher.Constraint("Vertical", 8),
    Sketcher.Constraint("Horizontal", 9),
    Sketcher.Constraint("Vertical", 10),
    Sketcher.Constraint("Horizontal", 11),
    Sketcher.Constraint("Vertical", 12),
    Sketcher.Constraint("Horizontal", 13),
    Sketcher.Constraint("Vertical", 14),
    Sketcher.Constraint("Horizontal", 15),
    Sketcher.Constraint("Vertical", 16),
    Sketcher.Constraint("Horizontal", 17),
    Sketcher.Constraint("Vertical", 18),
    Sketcher.Constraint("Horizontal", 19),
    Sketcher.Constraint("Horizontal", 1, 2, 4, 2),
    Sketcher.Constraint("Horizontal", 3, 2, 6, 2),
    Sketcher.Constraint("Horizontal", 5, 2, 8, 2),
    Sketcher.Constraint("Horizontal", 7, 2, 10, 2),
    Sketcher.Constraint("Horizontal", 9, 2, 12, 2),
    Sketcher.Constraint("Horizontal", 11, 2, 14, 2),
    Sketcher.Constraint("Horizontal", 13, 2, 16, 2),
    Sketcher.Constraint("Horizontal", 15, 2, 18, 2),
    Sketcher.Constraint("Equal", 3, 5),
    Sketcher.Constraint("Equal", 7, 9),
    Sketcher.Constraint("Equal", 11, 13),
    Sketcher.Constraint("Equal", 15, 17),
    Sketcher.Constraint("DistanceY", 0, 2, 0, 1, Q("4 mm")),
    Sketcher.Constraint("DistanceX", 13, 2, 16, 2, Q("14 mm")),
    Sketcher.Constraint("DistanceX", 0, 2, 4, 2, Q("18.5 mm")),
    Sketcher.Constraint("DistanceX", 4, 2, 8, 2, Q("18.5 mm")),
    Sketcher.Constraint("DistanceX", 8, 2, 12, 2, Q("18.5 mm")),
    Sketcher.Constraint("DistanceX", 1, 1, 1, 2, Q("4.501 mm")),
    Sketcher.Constraint("DistanceY", -1, 1, 0, 2, Q("13.25 mm")),
    Sketcher.Constraint("DistanceX", -1, 1, 1, 2, Q("3.15 mm")),
])
pad5 = doc.addObject("PartDesign::Pad", "Pad004")
body.addObject(pad5)
pad5.Profile = sketch11
pad5.Length = 5

# Sketch on XZ plane
sketch12 = doc.addObject("Sketcher::SketchObject", "Sketch011")
body.addObject(sketch12)
sketch12.AttachmentSupport = (doc.XZ_Plane, [""])
sketch12.MapMode = "FlatFace"
sketch12.AttachmentOffset = App.Placement(V(0, 0, -14.859), App.Rotation())
sketch12.addGeometry([
    Part.LineSegment(V(5, -8.2, 0), V(3.5, -8.2, 0)),
    Part.ArcOfCircle(Part.Circle(V(3.5, -7, 0), V(0, 0, 1), 1.2), math.radians(90), math.radians(270)),
    Part.LineSegment(V(3.5, -5.8, 0), V(5, -5.8, 0)),
    Part.LineSegment(V(5, -5.8, 0), V(5, -8.2, 0)),
], False)
sketch12.addConstraint([
    Sketcher.Constraint("Tangent", 0, 2, 1, 2),
    Sketcher.Constraint("Tangent", 1, 1, 2, 1),
    Sketcher.Constraint("Coincident", 2, 2, 3, 1),
    Sketcher.Constraint("Coincident", 3, 2, 0, 1),
    Sketcher.Constraint("Horizontal", 0),
    Sketcher.Constraint("Horizontal", 2),
    Sketcher.Constraint("Vertical", 3),
    Sketcher.Constraint("Radius", 1, Q("1.25 mm")),
    Sketcher.Constraint("DistanceX", 0, 2, 0, 1, Q("1.5 mm")),
    Sketcher.Constraint("DistanceY", 1, 3, -1, 1, Q("7 mm")),
    Sketcher.Constraint("DistanceX", -1, 1, 2, 2, Q("5 mm")),
])
pocket7 = doc.addObject("PartDesign::Pocket", "Pocket006")
body.addObject(pocket7)
pocket7.Profile = sketch12
pocket7.Length = 2.5
pocket7.Reversed = True

doc.recompute()
